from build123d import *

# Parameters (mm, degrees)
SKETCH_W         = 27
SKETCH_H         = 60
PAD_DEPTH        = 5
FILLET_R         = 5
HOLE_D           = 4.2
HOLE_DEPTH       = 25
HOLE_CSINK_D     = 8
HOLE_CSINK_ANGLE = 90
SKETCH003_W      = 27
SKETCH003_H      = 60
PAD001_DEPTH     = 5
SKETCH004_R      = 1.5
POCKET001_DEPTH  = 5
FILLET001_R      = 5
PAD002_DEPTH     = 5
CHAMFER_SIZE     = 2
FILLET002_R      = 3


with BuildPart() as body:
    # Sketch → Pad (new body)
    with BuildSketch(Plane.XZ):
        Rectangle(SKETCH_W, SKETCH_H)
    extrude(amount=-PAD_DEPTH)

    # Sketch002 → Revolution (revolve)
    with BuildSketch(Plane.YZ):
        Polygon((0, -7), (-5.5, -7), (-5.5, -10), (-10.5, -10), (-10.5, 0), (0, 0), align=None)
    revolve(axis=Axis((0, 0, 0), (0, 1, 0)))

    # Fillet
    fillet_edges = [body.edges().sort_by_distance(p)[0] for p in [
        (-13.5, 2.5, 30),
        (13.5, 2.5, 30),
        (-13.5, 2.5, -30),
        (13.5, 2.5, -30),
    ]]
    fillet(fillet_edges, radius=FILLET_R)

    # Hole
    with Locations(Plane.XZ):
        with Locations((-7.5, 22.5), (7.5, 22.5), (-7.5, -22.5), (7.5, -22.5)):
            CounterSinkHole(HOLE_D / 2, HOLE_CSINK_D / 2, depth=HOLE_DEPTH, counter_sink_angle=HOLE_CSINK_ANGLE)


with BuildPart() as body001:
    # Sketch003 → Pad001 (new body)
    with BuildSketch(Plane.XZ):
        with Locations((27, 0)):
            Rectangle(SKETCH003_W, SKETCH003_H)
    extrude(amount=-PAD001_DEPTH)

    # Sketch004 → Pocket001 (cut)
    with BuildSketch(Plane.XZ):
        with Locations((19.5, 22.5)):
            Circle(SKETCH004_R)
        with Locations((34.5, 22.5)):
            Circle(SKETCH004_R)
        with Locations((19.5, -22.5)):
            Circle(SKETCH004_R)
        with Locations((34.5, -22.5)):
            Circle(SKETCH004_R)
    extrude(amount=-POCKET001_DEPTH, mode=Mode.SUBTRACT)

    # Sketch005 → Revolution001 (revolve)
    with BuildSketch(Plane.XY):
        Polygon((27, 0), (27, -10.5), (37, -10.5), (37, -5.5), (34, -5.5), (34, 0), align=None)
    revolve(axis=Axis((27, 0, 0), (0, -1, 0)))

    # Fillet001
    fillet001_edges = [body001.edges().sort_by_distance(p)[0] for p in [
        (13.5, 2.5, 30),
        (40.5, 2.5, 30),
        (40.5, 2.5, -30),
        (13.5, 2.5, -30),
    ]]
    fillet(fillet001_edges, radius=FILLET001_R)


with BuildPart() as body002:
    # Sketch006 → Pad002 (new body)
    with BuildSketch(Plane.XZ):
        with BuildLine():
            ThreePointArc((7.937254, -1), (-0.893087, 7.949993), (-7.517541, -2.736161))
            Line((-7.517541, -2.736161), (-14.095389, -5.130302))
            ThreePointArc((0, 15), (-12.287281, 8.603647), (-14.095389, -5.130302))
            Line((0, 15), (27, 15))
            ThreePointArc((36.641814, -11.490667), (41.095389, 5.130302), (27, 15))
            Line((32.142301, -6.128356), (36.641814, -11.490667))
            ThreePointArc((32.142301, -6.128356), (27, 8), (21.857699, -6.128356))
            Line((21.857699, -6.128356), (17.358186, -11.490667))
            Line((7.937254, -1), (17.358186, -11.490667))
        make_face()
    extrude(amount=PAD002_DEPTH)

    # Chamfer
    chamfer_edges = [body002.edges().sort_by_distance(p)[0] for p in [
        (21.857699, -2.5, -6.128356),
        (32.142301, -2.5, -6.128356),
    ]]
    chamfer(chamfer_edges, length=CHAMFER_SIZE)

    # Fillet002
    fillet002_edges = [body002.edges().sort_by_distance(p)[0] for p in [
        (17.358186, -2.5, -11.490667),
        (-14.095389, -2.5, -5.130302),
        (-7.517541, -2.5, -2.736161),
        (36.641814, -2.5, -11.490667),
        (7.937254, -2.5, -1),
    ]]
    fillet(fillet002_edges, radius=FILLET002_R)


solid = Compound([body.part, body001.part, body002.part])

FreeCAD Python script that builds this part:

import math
import FreeCAD as App
import Part
import Sketcher
Q = App.Units.Quantity


def edges_at(feature, points):
    """Names of the edges that pass closest to the given points."""
    edges = feature.Shape.Edges
    near = lambda p: min(range(len(edges)), key=lambda i: edges[i].distToShape(Part.Vertex(*p))[0])
    return sorted({f"Edge{near(p) + 1}" for p in points})

doc = App.newDocument("Part")
body = doc.addObject("PartDesign::Body", "Body")

sketch1 = doc.addObject("Sketcher::SketchObject", "Sketch")
body.addObject(sketch1)
sketch1.AttachmentSupport = (doc.XZ_Plane, [""])
sketch1.MapMode = "FlatFace"
sketch1.addGeometry([
    Part.LineSegment(App.Vector(-14, 30, 0), App.Vector(-14, -30, 0)),
    Part.LineSegment(App.Vector(-14, -30, 0), App.Vector(14, -30, 0)),
    Part.LineSegment(App.Vector(14, -30, 0), App.Vector(14, 30, 0)),
    Part.LineSegment(App.Vector(14, 30, 0), App.Vector(-14, 30, 0)),
], False)
sketch1.addConstraint([
    Sketcher.Constraint("Coincident", 0, 2, 1, 1),
    Sketcher.Constraint("Coincident", 1, 2, 2, 1),
    Sketcher.Constraint("Coincident", 2, 2, 3, 1),
    Sketcher.Constraint("Coincident", 3, 2, 0, 1),
    Sketcher.Constraint("Vertical", 0),
    Sketcher.Constraint("Horizontal", 1),
    Sketcher.Constraint("Vertical", 2),
    Sketcher.Constraint("Horizontal", 3),
    Sketcher.Constraint("Symmetric", 0, 2, 2, 2, -1, 1),
    Sketcher.Constraint("DistanceX", 1, 1, 1, 2, 27.0),
    Sketcher.Constraint("DistanceY", 0, 2, 0, 1, 60.0),
])
pad1 = doc.addObject("PartDesign::Pad", "Pad")
body.addObject(pad1)
pad1.Profile = sketch1
pad1.Length = 5
pad1.Reversed = True

sketch2 = doc.addObject("Sketcher::SketchObject", "Sketch001")
body.addObject(sketch2)
sketch2.AttachmentSupport = (doc.YZ_Plane, [""])
sketch2.MapMode = "FlatFace"
sketch2.addGeometry([
    Part.LineSegment(App.Vector(-5.5, -7, 0), App.Vector(0, -7, 0)),
    Part.LineSegment(App.Vector(0, -7, 0), App.Vector(0, 0, 0)),
    Part.LineSegment(App.Vector(0, 0, 0), App.Vector(-10.5, 0, 0)),
    Part.LineSegment(App.Vector(-10.5, 0, 0), App.Vector(-10.5, -10, 0)),
    Part.LineSegment(App.Vector(-10.5, -10, 0), App.Vector(-5.5, -10, 0)),
    Part.LineSegment(App.Vector(-5.5, -10, 0), App.Vector(-5.5, -7, 0)),
], False)
sketch2.addConstraint([
    Sketcher.Constraint("Coincident", 0, 2, 1, 1),
    Sketcher.Constraint("Coincident", 1, 2, 2, 1),
    Sketcher.Constraint("Coincident", 2, 2, 3, 1),
    Sketcher.Constraint("Coincident", 3, 2, 4, 1),
    Sketcher.Constraint("Coincident", 4, 2, 5, 1),
    Sketcher.Constraint("Coincident", 5, 2, 0, 1),
    Sketcher.Constraint("Horizontal", 0),
    Sketcher.Constraint("Vertical", 1),
    Sketcher.Constraint("Horizontal", 2),
    Sketcher.Constraint("Vertical", 3),
    Sketcher.Constraint("Horizontal", 4),
    Sketcher.Constraint("Vertical", 5),
    Sketcher.Constraint("Coincident", 1, 2, -1, 1),
    Sketcher.Constraint("DistanceX", 4, 1, 4, 2, 5.0),
    Sketcher.Constraint("DistanceY", 1, 1, 1, 2, 7.0),
    Sketcher.Constraint("DistanceY", 3, 2, 3, 1, 10.0),
    Sketcher.Constraint("DistanceX", 0, 1, 0, 2, 5.5),
])
revolution = doc.addObject("PartDesign::Revolution", "Revolution")
body.addObject(revolution)
revolution.Profile = sketch2
revolution.ReferenceAxis = (sketch2, ["H_Axis"])
revolution.Angle = 360
doc.recompute()

fillet = doc.addObject("PartDesign::Fillet", "Fillet")
body.addObject(fillet)
fillet.Base = (revolution, edges_at(revolution, [
    (-13.5, 2.5, 30),
    (13.5, 2.5, 30),
    (-13.5, 2.5, -30),
    (13.5, 2.5, -30),
]))
fillet.Radius = 5

sketch3 = doc.addObject("Sketcher::SketchObject", "Sketch002")
body.addObject(sketch3)
sketch3.AttachmentSupport = (doc.XZ_Plane, [""])
sketch3.MapMode = "FlatFace"
sketch3.addGeometry([
    Part.Circle(App.Vector(-7.5, 22.5, 0), App.Vector(0, 0, 1), 2.1),
    Part.Circle(App.Vector(7.5, 22.5, 0), App.Vector(0, 0, 1), 2.1),
    Part.Circle(App.Vector(-7.5, -22.5, 0), App.Vector(0, 0, 1), 2.1),
    Part.Circle(App.Vector(7.5, -22.5, 0), App.Vector(0, 0, 1), 2.1),
], False)
sketch3.addConstraint([
    Sketcher.Constraint("Equal", 0, 1),
    Sketcher.Constraint("Equal", 1, 2),
    Sketcher.Constraint("Equal", 2, 3),
    Sketcher.Constraint("Symmetric", 1, 3, 2, 3, -1, 1),
    Sketcher.Constraint("Symmetric", 0, 3, 3, 3, -1, 1),
    Sketcher.Constraint("Symmetric", 0, 3, 1, 3, -2),
    Sketcher.Constraint("Diameter", 0, 4.2),
    Sketcher.Constraint("DistanceX", 0, 3, 1, 3, 15.0),
    Sketcher.Constraint("DistanceY", 2, 3, 0, 3, 45.0),
])
doc.recompute()
hole = doc.addObject("PartDesign::Hole", "Hole")
body.addObject(hole)
hole.Profile = sketch3
hole.ThreadType = "None"
hole.Diameter = 4.2
hole.DepthType = "Dimension"
hole.Depth = 25
hole.DrillPoint = "Flat"
hole.HoleCutType = "Countersink"
hole.HoleCutDiameter = 8
hole.HoleCutCountersinkAngle = 90
body2 = doc.addObject("PartDesign::Body", "Body001")

sketch4 = doc.addObject("Sketcher::SketchObject", "Sketch003")
body2.addObject(sketch4)
sketch4.AttachmentSupport = (doc.getObject("XZ_Plane001"), [""])
sketch4.MapMode = "FlatFace"
sketch4.addGeometry([
    Part.LineSegment(App.Vector(14, 30, 0), App.Vector(14, -30, 0)),
    Part.LineSegment(App.Vector(14, -30, 0), App.Vector(40, -30, 0)),
    Part.LineSegment(App.Vector(40, -30, 0), App.Vector(40, 30, 0)),
    Part.LineSegment(App.Vector(40, 30, 0), App.Vector(14, 30, 0)),
], False)
sketch4.addConstraint([
    Sketcher.Constraint("Coincident", 0, 2, 1, 1),
    Sketcher.Constraint("Coincident", 1, 2, 2, 1),
    Sketcher.Constraint("Coincident", 2, 2, 3, 1),
    Sketcher.Constraint("Coincident", 3, 2, 0, 1),
    Sketcher.Constraint("Vertical", 0),
    Sketcher.Constraint("Horizontal", 1),
    Sketcher.Constraint("Vertical", 2),
    Sketcher.Constraint("Horizontal", 3),
    Sketcher.Constraint("DistanceX", 1, 1, 1, 2, 27.0),
    Sketcher.Constraint("DistanceY", 0, 2, 0, 1, 60.0),
    Sketcher.Constraint("DistanceY", 0, 2, -1, 1, 30.0),
    Sketcher.Constraint("DistanceX", -1, 1, 0, 2, 13.5),
])
pad2 = doc.addObject("PartDesign::Pad", "Pad001")
body2.addObject(pad2)
pad2.Profile = sketch4
pad2.Length = 5
pad2.Reversed = True

sketch5 = doc.addObject("Sketcher::SketchObject", "Sketch004")
body2.addObject(sketch5)
sketch5.AttachmentSupport = (doc.getObject("XZ_Plane001"), [""])
sketch5.MapMode = "FlatFace"
sketch5.addGeometry([
    Part.Circle(App.Vector(19.5, 22.5, 0), App.Vector(0, 0, 1), 1.5),
    Part.Circle(App.Vector(34.5, 22.5, 0), App.Vector(0, 0, 1), 1.5),
    Part.Circle(App.Vector(19.5, -22.5, 0), App.Vector(0, 0, 1), 1.5),
    Part.Circle(App.Vector(34.5, -22.5, 0), App.Vector(0, 0, 1), 1.5),
], False)
sketch5.addConstraint([
    Sketcher.Constraint("Equal", 0, 1),
    Sketcher.Constraint("Equal", 1, 2),
    Sketcher.Constraint("Equal", 2, 3),
    Sketcher.Constraint("Symmetric", 0, 3, 2, 3, -1),
    Sketcher.Constraint("Symmetric", 1, 3, 3, 3, -1),
    Sketcher.Constraint("Horizontal", 0, 3, 1, 3),
    Sketcher.Constraint("Diameter", 0, 3.0),
    Sketcher.Constraint("DistanceX", 0, 3, 1, 3, 15.0),
    Sketcher.Constraint("DistanceY", 2, 3, 0, 3, 45.0),
    Sketcher.Constraint("DistanceX", -1, 1, 0, 3, 19.5),
])
pocket1 = doc.addObject("PartDesign::Pocket", "Pocket")
body2.addObject(pocket1)
pocket1.Profile = sketch5
pocket1.Length = 5

sketch6 = doc.addObject("Sketcher::SketchObject", "Sketch005")
body2.addObject(sketch6)
sketch6.AttachmentSupport = (doc.getObject("XY_Plane001"), [""])
sketch6.MapMode = "FlatFace"
sketch6.addGeometry([
    Part.LineSegment(App.Vector(27, 0, 0), App.Vector(27, -10.5, 0)),
    Part.LineSegment(App.Vector(27, -10.5, 0), App.Vector(37, -10.5, 0)),
    Part.LineSegment(App.Vector(37, -10.5, 0), App.Vector(37, -5.5, 0)),
    Part.LineSegment(App.Vector(37, -5.5, 0), App.Vector(34, -5.5, 0)),
    Part.LineSegment(App.Vector(34, -5.5, 0), App.Vector(34, 0, 0)),
    Part.LineSegment(App.Vector(34, 0, 0), App.Vector(27, 0, 0)),
], False)
sketch6.addGeometry(Part.LineSegment(App.Vector(27, 0, 0), App.Vector(27, -10.5, 0)), True)
sketch6.addConstraint([
    Sketcher.Constraint("Coincident", 0, 2, 1, 1),
    Sketcher.Constraint("Coincident", 1, 2, 2, 1),
    Sketcher.Constraint("Coincident", 2, 2, 3, 1),
    Sketcher.Constraint("Coincident", 3, 2, 4, 1),
    Sketcher.Constraint("Coincident", 4, 2, 5, 1),
    Sketcher.Constraint("Coincident", 5, 2, 0, 1),
    Sketcher.Constraint("Vertical", 0),
    Sketcher.Constraint("Horizontal", 1),
    Sketcher.Constraint("Vertical", 2),
    Sketcher.Constraint("Horizontal", 3),
    Sketcher.Constraint("Vertical", 4),
    Sketcher.Constraint("Horizontal", 5),
    Sketcher.Constraint("Vertical", 6),
    Sketcher.Constraint("Coincident", 6, 1, 5, 2),
    Sketcher.Constraint("PointOnObject", 4, 2, -1),
    Sketcher.Constraint("Horizontal", 1, 2, 6, 2),
    Sketcher.Constraint("DistanceX", 1, 1, 1, 2, 10.0),
    Sketcher.Constraint("DistanceX", 3, 2, 3, 1, 3.0),
    Sketcher.Constraint("DistanceY", 2, 1, 2, 2, 5.0),
    Sketcher.Constraint("DistanceY", 0, 2, 0, 1, 10.5),
    Sketcher.Constraint("DistanceX", -1, 1, 0, 2, 27.0),
])
revolution2 = doc.addObject("PartDesign::Revolution", "Revolution001")
body2.addObject(revolution2)
revolution2.Profile = sketch6
revolution2.ReferenceAxis = (sketch6, ["Axis0"])
revolution2.Angle = 360
doc.recompute()

fillet2 = doc.addObject("PartDesign::Fillet", "Fillet001")
body2.addObject(fillet2)
fillet2.Base = (revolution2, edges_at(revolution2, [
    (13.5, 2.5, 30),
    (40.5, 2.5, 30),
    (40.5, 2.5, -30),
    (13.5, 2.5, -30),
]))
fillet2.Radius = 5
body3 = doc.addObject("PartDesign::Body", "Body002")

sketch7 = doc.addObject("Sketcher::SketchObject", "Sketch006")
body3.addObject(sketch7)
sketch7.AttachmentSupport = (doc.getObject("XZ_Plane002"), [""])
sketch7.MapMode = "FlatFace"
sketch7.addGeometry([
    Part.ArcOfCircle(Part.Circle(App.Vector(0, 0, 0), App.Vector(0, 0, 1), 8), math.radians(-7), math.radians(200)),
    Part.LineSegment(App.Vector(8, -1, 0), App.Vector(17, -11, 0)),
    Part.LineSegment(App.Vector(17, -11, 0), App.Vector(22, -6, 0)),
    Part.ArcOfCircle(Part.Circle(App.Vector(27, 0, 0), App.Vector(0, 0, 1), 8), math.radians(-50), math.radians(230)),
    Part.LineSegment(App.Vector(32, -6, 0), App.Vector(37, -11, 0)),
    Part.ArcOfCircle(Part.Circle(App.Vector(27, 0, 0), App.Vector(0, 0, 1), 15), math.radians(-50), math.radians(90)),
    Part.LineSegment(App.Vector(27, 15, 0), App.Vector(0, 15, 0)),
    Part.ArcOfCircle(Part.Circle(App.Vector(0, 0, 0), App.Vector(0, 0, 1), 15), math.radians(90), math.radians(200)),
    Part.LineSegment(App.Vector(-14, -5, 0), App.Vector(-8, -3, 0)),
], False)
sketch7.addConstraint([
    Sketcher.Constraint("Coincident", 0, 1, 1, 1),
    Sketcher.Constraint("Coincident", 1, 2, 2, 1),
    Sketcher.Constraint("Coincident", 2, 2, 3, 2),
    Sketcher.Constraint("Coincident", 3, 1, 4, 1),
    Sketcher.Constraint("Coincident", 4, 2, 5, 1),
    Sketcher.Constraint("Tangent", 5, 2, 6, 1),
    Sketcher.Constraint("Tangent", 6, 2, 7, 1),
    Sketcher.Constraint("Coincident", 7, 2, 8, 1),
    Sketcher.Constraint("Coincident", 8, 2, 0, 2),
    Sketcher.Constraint("Horizontal", 6),
    Sketcher.Constraint("Coincident", 0, 3, -1, 1),
    Sketcher.Constraint("Coincident", 7, 3, -1, 1),
    Sketcher.Constraint("Coincident", 5, 3, 3, 3),
    Sketcher.Constraint("Equal", 0, 3),
    Sketcher.Constraint("Equal", 5, 7),
    Sketcher.Constraint("Horizontal", 2, 2, 3, 1),
    Sketcher.Constraint("Horizontal", 1, 2, 4, 2),
    Sketcher.Constraint("Equal", 2, 4),
    Sketcher.Constraint("Radius", 0, 8.0),
    Sketcher.Constraint("Radius", 5, 15.0),
    Sketcher.Constraint("DistanceX", 6, 2, 6, 1, 27.0),
    Sketcher.Constraint("Angle", 2, Q("50.000001 deg")),
    Sketcher.Constraint("Angle", 8, Q("20.000001 deg")),
    Sketcher.Constraint("DistanceY", 0, 1, -1, 1, 1.0),
    Sketcher.Constraint("DistanceX", -1, 1, 2, 2, 21.857699),
    Sketcher.Constraint("DistanceY", 7, 2, 0, 3, 5.130302),
])
pad3 = doc.addObject("PartDesign::Pad", "Pad002")
body3.addObject(pad3)
pad3.Profile = sketch7
pad3.Length = 5
doc.recompute()

chamfer = doc.addObject("PartDesign::Chamfer", "Chamfer")
body3.addObject(chamfer)
chamfer.Base = (pad3, edges_at(pad3, [(21.858, -2.5, -6.128), (32.142, -2.5, -6.128)]))
chamfer.Size = 2
doc.recompute()

fillet3 = doc.addObject("PartDesign::Fillet", "Fillet002")
body3.addObject(fillet3)
fillet3.Base = (chamfer, edges_at(chamfer, [
    (17.358, -2.5, -11.491),
    (-14.095, -2.5, -5.13),
    (-7.518, -2.5, -2.736),
    (36.642, -2.5, -11.491),
    (7.937, -2.5, -1),
]))
fillet3.Radius = 3

doc.recompute()
